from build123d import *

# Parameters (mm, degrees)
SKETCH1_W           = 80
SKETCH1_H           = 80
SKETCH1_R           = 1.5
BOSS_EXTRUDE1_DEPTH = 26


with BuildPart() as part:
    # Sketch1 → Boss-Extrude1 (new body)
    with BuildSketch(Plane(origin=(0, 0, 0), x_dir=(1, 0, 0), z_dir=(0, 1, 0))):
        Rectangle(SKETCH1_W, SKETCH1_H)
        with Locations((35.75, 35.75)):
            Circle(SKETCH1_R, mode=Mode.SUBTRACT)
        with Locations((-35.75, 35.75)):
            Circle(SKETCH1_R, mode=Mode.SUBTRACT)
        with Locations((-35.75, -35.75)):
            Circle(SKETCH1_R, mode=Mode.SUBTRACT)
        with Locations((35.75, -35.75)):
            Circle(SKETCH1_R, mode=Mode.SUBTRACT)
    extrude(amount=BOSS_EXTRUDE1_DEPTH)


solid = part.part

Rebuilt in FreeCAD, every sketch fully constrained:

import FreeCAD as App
import Part
import Sketcher


def add_polygon(sketch, points):
    """Adds a closed chain of lines whose ends are joined by coincident constraints."""
    first, n = sketch.GeometryCount, len(points)
    for a, b in zip(points, points[1:] + points[:1]):
        sketch.addGeometry(Part.LineSegment(App.Vector(*a, 0), App.Vector(*b, 0)), False)
    for i in range(n):
        sketch.addConstraint(Sketcher.Constraint("Coincident", first + i, 2, first + (i + 1) % n, 1))

doc = App.newDocument("Part")
body = doc.addObject("PartDesign::Body", "Body")

sketch1 = body.newObject("Sketcher::SketchObject", "Sketch")
sketch1.AttachmentSupport = (doc.getObject("XZ_Plane"), [""])
sketch1.MapMode = "FlatFace"
add_polygon(sketch1, [(-40, -40), (-40, 40), (40, 40), (40, -40)])
sketch1.addGeometry(Part.Circle(App.Vector(-35.8, 35.8, 0), App.Vector(0, 0, 1), 1.5), False)
sketch1.addGeometry(Part.Circle(App.Vector(35.8, 35.8, 0), App.Vector(0, 0, 1), 1.5), False)
sketch1.addGeometry(Part.Circle(App.Vector(-35.8, -35.8, 0), App.Vector(0, 0, 1), 1.5), False)
sketch1.addGeometry(Part.Circle(App.Vector(35.8, -35.8, 0), App.Vector(0, 0, 1), 1.5), False)
sketch1.addConstraint(Sketcher.Constraint("Vertical", 0))
sketch1.addConstraint(Sketcher.Constraint("Horizontal", 1))
sketch1.addConstraint(Sketcher.Constraint("Vertical", 2))
sketch1.addConstraint(Sketcher.Constraint("Horizontal", 3))
sketch1.addConstraint(Sketcher.Constraint("Equal", 4, 5))
sketch1.addConstraint(Sketcher.Constraint("Equal", 5, 6))
sketch1.addConstraint(Sketcher.Constraint("Equal", 6, 7))
sketch1.addConstraint(Sketcher.Constraint("Symmetric", 5, 3, 6, 3, -1, 1))
sketch1.addConstraint(Sketcher.Constraint("Symmetric", 4, 3, 7, 3, -1, 1))
sketch1.addConstraint(Sketcher.Constraint("Symmetric", 0, 2, 2, 2, -1, 1))
sketch1.addConstraint(Sketcher.Constraint("Symmetric", 4, 3, 5, 3, -2))
sketch1.addConstraint(Sketcher.Constraint("Equal", 3, 0))
sketch1.addConstraint(Sketcher.Constraint("Diameter", 4, 3.0))
sketch1.addConstraint(Sketcher.Constraint("DistanceX", 1, 1, 1, 2, 80.0))
sketch1.addConstraint(Sketcher.Constraint("DistanceX", 4, 3, 5, 3, 71.5))
sketch1.addConstraint(Sketcher.Constraint("DistanceY", 6, 3, 4, 3, 71.5))
pad1 = body.newObject("PartDesign::Pad", "Pad")
pad1.Profile = sketch1
pad1.Length = 26
pad1.Reversed = True

doc.recompute()
